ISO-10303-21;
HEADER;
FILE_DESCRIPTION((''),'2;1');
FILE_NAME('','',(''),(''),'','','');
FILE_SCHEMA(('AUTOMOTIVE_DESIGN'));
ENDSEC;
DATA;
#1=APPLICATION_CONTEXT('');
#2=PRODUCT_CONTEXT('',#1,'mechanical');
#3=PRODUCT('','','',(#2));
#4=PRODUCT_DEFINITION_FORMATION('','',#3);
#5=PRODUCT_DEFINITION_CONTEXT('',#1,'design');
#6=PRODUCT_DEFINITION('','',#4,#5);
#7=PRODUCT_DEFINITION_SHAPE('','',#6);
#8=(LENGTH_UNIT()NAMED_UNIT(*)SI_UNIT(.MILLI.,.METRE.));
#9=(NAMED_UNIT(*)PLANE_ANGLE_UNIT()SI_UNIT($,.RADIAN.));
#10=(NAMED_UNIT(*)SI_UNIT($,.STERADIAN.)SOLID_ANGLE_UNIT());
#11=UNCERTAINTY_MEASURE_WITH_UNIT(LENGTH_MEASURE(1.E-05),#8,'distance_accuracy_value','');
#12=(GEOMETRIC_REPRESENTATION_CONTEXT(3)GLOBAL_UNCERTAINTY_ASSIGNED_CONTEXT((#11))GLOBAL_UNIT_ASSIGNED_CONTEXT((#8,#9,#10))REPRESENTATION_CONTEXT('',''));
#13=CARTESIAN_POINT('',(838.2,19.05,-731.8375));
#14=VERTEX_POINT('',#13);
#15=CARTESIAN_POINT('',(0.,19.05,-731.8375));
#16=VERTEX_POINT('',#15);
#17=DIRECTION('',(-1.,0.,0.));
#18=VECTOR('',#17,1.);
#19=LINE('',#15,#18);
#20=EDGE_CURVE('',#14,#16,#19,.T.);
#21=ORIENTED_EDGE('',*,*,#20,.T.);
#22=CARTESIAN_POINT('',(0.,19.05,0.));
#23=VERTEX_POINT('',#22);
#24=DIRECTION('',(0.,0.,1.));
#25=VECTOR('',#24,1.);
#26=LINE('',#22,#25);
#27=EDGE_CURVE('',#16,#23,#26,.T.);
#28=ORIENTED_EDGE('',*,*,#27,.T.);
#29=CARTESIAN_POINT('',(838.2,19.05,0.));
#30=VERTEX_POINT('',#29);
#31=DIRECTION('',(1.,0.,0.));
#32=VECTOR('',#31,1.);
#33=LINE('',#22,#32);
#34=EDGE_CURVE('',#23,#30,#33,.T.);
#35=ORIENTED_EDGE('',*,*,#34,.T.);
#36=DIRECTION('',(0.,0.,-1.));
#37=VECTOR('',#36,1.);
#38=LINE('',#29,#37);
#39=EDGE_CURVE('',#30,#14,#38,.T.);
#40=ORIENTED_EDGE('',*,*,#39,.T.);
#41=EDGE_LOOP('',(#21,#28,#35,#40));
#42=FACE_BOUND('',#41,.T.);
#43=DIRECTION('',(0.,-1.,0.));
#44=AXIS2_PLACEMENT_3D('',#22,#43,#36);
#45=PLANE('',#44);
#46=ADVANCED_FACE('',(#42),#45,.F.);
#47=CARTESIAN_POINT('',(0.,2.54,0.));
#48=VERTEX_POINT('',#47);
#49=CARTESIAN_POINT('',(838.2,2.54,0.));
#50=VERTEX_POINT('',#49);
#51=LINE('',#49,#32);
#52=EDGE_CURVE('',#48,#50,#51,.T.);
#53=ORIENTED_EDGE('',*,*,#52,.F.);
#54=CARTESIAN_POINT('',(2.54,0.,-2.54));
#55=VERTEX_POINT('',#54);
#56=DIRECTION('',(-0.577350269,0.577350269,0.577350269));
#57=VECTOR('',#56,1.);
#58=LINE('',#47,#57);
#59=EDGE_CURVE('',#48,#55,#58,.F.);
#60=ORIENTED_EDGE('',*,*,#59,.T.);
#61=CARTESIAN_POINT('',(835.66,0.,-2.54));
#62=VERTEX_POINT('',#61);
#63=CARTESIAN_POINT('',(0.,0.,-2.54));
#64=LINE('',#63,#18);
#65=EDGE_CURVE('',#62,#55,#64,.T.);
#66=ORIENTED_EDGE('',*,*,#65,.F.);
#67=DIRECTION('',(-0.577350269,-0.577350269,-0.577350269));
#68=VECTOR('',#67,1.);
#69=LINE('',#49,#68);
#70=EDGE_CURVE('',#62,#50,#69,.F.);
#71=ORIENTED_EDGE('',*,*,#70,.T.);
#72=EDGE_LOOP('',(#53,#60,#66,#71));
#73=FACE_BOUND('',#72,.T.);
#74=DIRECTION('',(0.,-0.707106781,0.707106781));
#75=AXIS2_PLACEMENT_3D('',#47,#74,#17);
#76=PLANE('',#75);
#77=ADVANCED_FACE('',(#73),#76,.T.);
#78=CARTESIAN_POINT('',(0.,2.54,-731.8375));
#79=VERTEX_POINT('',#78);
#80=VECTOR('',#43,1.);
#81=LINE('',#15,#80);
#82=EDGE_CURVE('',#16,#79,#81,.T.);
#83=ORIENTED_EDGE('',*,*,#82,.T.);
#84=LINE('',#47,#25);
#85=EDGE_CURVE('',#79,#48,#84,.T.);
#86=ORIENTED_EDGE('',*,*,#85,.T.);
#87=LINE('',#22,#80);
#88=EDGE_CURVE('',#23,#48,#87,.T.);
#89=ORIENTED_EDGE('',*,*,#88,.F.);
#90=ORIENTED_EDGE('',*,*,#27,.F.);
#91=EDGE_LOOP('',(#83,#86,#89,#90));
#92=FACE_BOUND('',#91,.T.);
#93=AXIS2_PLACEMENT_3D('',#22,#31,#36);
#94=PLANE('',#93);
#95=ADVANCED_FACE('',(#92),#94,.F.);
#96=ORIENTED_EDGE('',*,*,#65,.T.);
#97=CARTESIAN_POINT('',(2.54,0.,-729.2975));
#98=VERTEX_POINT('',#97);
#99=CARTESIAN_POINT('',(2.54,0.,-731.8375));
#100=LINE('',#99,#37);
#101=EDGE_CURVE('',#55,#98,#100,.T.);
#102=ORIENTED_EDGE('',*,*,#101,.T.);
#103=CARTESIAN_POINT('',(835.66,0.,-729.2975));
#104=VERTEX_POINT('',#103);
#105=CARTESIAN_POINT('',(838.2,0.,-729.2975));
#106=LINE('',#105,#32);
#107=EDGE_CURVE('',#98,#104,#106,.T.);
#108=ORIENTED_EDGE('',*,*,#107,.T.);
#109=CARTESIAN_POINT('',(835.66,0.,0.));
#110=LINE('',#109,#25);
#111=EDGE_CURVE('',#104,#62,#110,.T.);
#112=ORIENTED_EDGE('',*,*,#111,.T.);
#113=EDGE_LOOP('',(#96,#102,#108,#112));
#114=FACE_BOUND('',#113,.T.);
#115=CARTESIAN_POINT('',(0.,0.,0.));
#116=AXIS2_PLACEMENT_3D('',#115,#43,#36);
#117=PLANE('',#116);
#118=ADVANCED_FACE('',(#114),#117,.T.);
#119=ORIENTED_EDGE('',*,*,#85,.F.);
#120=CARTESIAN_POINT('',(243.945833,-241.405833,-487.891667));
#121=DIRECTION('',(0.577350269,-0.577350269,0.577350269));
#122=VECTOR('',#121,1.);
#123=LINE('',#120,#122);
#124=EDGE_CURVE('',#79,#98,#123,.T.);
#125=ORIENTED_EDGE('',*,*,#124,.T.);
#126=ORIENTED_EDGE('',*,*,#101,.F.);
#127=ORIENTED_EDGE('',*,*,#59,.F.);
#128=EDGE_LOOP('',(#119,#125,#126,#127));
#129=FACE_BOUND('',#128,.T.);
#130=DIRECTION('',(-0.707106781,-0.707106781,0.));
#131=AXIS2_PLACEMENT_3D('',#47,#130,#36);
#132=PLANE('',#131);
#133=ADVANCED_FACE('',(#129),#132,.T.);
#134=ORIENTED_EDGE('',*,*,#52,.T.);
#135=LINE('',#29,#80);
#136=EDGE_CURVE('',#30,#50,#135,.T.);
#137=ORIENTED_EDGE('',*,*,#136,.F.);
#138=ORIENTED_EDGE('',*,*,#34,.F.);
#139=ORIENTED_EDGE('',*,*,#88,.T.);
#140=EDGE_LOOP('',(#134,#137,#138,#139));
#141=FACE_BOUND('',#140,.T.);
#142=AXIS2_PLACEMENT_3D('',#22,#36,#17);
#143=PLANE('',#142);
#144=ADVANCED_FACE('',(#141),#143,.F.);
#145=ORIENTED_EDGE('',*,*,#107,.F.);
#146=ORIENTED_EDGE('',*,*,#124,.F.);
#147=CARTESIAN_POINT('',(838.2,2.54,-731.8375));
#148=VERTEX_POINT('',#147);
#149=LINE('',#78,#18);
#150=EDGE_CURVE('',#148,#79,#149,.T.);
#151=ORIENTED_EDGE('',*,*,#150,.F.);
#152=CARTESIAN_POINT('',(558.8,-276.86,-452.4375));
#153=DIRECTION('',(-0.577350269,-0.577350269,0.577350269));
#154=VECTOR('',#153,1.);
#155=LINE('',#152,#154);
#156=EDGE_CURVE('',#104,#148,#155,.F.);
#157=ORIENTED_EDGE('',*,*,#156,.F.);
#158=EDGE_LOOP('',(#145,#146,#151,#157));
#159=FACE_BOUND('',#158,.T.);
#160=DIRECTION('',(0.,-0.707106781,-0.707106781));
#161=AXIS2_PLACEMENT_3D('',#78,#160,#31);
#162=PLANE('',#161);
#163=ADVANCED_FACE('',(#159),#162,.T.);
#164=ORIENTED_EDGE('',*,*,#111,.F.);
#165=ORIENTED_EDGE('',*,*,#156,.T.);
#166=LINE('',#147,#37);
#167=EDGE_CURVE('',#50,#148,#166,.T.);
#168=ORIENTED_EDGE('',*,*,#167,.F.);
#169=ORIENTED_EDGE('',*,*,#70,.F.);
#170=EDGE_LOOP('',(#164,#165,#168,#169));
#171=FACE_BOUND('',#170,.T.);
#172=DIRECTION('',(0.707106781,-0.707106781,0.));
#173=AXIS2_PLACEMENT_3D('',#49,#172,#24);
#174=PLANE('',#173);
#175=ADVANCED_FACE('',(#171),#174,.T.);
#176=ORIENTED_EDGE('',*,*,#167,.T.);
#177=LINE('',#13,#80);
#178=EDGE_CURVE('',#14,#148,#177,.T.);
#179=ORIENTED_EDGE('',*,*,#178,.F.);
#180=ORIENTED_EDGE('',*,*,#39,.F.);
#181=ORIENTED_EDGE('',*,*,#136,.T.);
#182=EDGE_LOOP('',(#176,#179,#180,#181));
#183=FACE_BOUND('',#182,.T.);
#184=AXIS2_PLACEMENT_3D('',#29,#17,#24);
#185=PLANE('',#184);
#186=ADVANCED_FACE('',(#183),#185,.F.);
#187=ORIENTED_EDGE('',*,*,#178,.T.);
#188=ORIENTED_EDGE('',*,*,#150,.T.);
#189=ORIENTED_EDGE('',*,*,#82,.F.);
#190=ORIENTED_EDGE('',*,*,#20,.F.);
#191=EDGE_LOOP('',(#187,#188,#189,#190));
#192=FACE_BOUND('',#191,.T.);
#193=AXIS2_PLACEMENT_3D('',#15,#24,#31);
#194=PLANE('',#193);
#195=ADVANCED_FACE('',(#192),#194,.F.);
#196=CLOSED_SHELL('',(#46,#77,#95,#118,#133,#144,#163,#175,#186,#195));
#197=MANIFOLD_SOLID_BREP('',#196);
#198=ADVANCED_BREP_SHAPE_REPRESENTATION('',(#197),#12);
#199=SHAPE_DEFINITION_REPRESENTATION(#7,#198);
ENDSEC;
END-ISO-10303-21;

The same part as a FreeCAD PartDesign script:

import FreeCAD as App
import Part
import Sketcher

V = App.Vector
Q = App.Units.Quantity


def edges_at(feature, points):
    """Names of the edges that pass closest to the given points."""
    edges = feature.Shape.Edges
    near = lambda p: min(range(len(edges)), key=lambda i: edges[i].distToShape(Part.Vertex(*p))[0])
    return sorted({f"Edge{near(p) + 1}" for p in points})


def add_polygon(sketch, points):
    """Adds a closed chain of lines whose ends are joined by coincident constraints."""
    first, n = sketch.GeometryCount, len(points)
    for a, b in zip(points, points[1:] + points[:1]):
        sketch.addGeometry(Part.LineSegment(App.Vector(*a, 0), App.Vector(*b, 0)), False)
    for i in range(n):
        sketch.addConstraint(Sketcher.Constraint("Coincident", first + i, 2, first + (i + 1) % n, 1))

doc = App.newDocument("Part")
body = doc.addObject("PartDesign::Body", "Body")

# Sketch on XZ plane
sketch1 = doc.addObject("Sketcher::SketchObject", "Sketch")
body.addObject(sketch1)
sketch1.AttachmentSupport = (doc.XZ_Plane, [""])
sketch1.MapMode = "FlatFace"
add_polygon(sketch1, [(0, -731.8375), (0, 0), (838.2, 0), (838.2, -731.8375)])  # lines 0-3
sketch1.addConstraint(Sketcher.Constraint("Vertical", 0))
sketch1.addConstraint(Sketcher.Constraint("Horizontal", 1))
sketch1.addConstraint(Sketcher.Constraint("Vertical", 2))
sketch1.addConstraint(Sketcher.Constraint("Horizontal", 3))
sketch1.addConstraint(Sketcher.Constraint("Coincident", 0, 2, -1, 1))
sketch1.addConstraint(Sketcher.Constraint("DistanceX", 1, 1, 1, 2, Q("33 in")))
sketch1.addConstraint(Sketcher.Constraint("DistanceY", 0, 1, 0, 2, Q("28.8125 in")))
pad1 = doc.addObject("PartDesign::Pad", "Pad")
body.addObject(pad1)
pad1.Profile = sketch1
pad1.Length = Q("0.75 in")
pad1.Reversed = True
doc.recompute()

chamfer = doc.addObject("PartDesign::Chamfer", "Chamfer")
body.addObject(chamfer)
chamfer.Base = (pad1, edges_at(pad1, [
    (419.1, 0, -731.837),
    (838.2, 0, -365.919),
    (419.1, 0, 0),
    (0, 0, -365.919),
]))
chamfer.Size = Q("0.1 in")

doc.recompute()
